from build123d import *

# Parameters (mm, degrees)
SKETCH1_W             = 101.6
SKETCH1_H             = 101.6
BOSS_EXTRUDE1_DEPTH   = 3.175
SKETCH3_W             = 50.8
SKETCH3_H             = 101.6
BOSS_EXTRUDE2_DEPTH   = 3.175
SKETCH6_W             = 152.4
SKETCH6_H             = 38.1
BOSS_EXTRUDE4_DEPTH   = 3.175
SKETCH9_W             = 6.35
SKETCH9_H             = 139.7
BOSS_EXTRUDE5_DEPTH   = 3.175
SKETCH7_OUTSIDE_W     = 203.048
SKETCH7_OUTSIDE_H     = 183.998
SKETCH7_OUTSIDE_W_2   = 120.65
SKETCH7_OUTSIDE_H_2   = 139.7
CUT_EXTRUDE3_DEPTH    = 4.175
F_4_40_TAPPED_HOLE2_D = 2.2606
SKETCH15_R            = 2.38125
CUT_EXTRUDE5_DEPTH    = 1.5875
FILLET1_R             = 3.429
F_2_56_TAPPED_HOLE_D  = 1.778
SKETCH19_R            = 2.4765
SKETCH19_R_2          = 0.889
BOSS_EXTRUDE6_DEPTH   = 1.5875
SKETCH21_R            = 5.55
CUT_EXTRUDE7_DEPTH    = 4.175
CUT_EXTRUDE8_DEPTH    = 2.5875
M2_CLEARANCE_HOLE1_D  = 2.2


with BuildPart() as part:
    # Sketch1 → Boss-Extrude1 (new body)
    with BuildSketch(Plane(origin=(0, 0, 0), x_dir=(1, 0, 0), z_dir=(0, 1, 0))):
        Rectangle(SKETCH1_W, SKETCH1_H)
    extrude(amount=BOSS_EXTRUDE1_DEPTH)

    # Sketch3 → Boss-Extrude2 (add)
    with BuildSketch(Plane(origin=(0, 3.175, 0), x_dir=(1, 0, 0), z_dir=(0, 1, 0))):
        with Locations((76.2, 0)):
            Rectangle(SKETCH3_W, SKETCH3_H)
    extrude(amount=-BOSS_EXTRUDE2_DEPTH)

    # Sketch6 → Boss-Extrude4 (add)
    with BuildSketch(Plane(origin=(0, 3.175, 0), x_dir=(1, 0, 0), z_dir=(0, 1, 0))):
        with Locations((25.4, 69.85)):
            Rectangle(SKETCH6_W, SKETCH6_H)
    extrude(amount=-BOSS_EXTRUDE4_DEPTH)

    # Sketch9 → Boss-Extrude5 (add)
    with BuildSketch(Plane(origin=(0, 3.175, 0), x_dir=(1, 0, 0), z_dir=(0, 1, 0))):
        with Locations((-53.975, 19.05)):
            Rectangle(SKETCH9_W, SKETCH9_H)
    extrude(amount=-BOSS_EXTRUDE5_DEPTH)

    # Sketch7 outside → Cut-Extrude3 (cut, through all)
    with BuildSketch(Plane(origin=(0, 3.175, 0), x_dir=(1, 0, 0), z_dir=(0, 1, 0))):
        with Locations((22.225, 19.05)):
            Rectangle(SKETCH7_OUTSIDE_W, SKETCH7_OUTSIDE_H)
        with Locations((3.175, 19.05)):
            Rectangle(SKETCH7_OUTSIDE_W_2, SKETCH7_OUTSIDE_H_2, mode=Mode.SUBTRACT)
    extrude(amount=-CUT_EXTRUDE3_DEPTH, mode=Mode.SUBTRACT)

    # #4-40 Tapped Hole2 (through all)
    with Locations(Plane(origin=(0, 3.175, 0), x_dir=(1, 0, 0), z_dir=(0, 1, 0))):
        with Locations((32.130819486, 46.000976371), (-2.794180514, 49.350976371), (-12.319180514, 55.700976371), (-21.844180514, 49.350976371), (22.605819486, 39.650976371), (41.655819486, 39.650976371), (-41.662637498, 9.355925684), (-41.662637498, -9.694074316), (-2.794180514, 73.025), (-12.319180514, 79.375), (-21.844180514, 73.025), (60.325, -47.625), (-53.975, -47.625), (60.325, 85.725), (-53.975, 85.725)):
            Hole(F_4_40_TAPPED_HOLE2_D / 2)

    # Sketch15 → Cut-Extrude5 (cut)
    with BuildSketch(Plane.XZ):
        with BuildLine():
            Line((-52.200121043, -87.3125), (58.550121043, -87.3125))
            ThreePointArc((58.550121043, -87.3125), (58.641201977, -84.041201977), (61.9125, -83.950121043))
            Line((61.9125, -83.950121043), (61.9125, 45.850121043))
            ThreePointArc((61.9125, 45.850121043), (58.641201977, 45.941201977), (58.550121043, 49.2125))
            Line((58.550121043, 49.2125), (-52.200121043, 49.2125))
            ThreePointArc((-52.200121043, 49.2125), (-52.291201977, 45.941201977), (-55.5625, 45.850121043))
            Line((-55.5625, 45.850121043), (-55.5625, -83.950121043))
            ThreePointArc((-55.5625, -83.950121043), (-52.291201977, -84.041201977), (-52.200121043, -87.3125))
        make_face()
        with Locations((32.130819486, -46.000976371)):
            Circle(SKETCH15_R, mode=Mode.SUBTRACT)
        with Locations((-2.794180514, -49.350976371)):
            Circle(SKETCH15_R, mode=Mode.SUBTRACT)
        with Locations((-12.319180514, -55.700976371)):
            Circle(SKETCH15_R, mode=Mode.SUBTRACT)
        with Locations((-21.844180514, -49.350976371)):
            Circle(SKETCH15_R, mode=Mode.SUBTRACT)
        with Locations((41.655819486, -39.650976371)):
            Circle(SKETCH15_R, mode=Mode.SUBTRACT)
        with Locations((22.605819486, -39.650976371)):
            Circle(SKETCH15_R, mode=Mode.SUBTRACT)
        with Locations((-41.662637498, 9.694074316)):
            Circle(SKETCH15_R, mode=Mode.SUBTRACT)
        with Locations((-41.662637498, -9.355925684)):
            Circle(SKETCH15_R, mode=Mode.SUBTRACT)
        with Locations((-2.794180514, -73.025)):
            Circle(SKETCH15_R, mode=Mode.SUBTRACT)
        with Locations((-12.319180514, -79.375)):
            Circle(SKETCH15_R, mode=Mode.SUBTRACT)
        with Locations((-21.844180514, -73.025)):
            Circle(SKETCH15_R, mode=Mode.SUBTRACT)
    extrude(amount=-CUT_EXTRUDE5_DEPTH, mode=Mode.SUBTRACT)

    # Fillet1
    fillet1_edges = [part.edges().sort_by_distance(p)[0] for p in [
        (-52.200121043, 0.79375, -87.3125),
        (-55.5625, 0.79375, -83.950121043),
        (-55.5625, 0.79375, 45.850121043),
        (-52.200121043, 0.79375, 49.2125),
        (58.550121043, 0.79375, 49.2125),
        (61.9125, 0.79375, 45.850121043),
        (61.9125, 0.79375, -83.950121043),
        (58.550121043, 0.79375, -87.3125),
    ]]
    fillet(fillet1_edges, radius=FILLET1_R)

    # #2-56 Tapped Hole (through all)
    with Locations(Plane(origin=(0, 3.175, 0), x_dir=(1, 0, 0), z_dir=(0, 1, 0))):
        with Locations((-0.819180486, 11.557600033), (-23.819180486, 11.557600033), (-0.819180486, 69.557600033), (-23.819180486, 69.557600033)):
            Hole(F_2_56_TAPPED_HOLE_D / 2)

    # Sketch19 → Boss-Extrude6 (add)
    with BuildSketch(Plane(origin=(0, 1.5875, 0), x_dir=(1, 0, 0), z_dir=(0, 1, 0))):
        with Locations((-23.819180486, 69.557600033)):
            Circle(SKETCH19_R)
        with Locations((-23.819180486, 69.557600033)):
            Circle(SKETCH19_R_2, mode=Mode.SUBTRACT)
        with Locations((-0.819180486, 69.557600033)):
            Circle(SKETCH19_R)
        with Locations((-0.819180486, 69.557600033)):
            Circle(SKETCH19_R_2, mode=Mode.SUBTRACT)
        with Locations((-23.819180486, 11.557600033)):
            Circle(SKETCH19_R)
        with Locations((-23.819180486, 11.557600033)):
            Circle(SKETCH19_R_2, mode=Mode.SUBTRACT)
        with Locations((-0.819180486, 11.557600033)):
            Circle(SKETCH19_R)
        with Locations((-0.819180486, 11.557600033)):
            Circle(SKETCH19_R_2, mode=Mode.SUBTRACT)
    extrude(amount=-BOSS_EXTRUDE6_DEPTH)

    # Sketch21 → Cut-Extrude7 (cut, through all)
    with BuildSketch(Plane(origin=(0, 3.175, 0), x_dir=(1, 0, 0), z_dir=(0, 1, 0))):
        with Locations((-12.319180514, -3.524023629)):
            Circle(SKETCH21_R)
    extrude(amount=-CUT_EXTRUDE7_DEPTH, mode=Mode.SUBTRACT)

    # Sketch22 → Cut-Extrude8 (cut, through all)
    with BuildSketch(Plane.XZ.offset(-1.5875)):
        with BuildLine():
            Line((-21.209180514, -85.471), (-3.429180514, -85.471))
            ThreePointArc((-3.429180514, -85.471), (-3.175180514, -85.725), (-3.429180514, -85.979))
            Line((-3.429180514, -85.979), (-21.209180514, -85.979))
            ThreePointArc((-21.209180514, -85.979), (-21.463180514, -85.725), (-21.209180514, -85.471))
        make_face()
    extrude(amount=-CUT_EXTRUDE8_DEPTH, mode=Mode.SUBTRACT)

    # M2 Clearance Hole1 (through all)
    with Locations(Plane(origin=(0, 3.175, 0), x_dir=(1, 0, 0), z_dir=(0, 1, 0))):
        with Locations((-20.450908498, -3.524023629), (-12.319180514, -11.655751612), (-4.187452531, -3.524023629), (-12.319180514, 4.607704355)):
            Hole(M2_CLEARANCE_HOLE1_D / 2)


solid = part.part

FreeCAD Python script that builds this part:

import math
import FreeCAD as App
import Part
import Sketcher
Q = App.Units.Quantity


def edges_at(feature, points):
    """Names of the edges that pass closest to the given points."""
    edges = feature.Shape.Edges
    near = lambda p: min(range(len(edges)), key=lambda i: edges[i].distToShape(Part.Vertex(*p))[0])
    return sorted({f"Edge{near(p) + 1}" for p in points})


def add_polygon(sketch, points):
    """Adds a closed chain of lines whose ends are joined by coincident constraints."""
    first, n = sketch.GeometryCount, len(points)
    for a, b in zip(points, points[1:] + points[:1]):
        sketch.addGeometry(Part.LineSegment(App.Vector(*a, 0), App.Vector(*b, 0)), False)
    for i in range(n):
        sketch.addConstraint(Sketcher.Constraint("Coincident", first + i, 2, first + (i + 1) % n, 1))

doc = App.newDocument("Part")
body = doc.addObject("PartDesign::Body", "Body")

sketch1 = body.newObject("Sketcher::SketchObject", "Sketch")
sketch1.AttachmentSupport = (doc.getObject("XZ_Plane"), [""])
sketch1.MapMode = "FlatFace"
add_polygon(sketch1, [(-51, -51), (-51, 51), (51, 51), (51, -51)])
sketch1.addConstraint([
    Sketcher.Constraint("Vertical", 0),
    Sketcher.Constraint("Horizontal", 1),
    Sketcher.Constraint("Vertical", 2),
    Sketcher.Constraint("Horizontal", 3),
    Sketcher.Constraint("Symmetric", 0, 2, 2, 2, -1, 1),
    Sketcher.Constraint("Equal", 3, 0),
    Sketcher.Constraint("DistanceX", 1, 1, 1, 2, Q("4 in")),
])
pad1 = body.newObject("PartDesign::Pad", "Pad")
pad1.Profile = sketch1
pad1.Length = Q("0.125 in")
pad1.Reversed = True

sketch2 = body.newObject("Sketcher::SketchObject", "Sketch001")
sketch2.AttachmentSupport = (doc.getObject("XZ_Plane"), [""])
sketch2.MapMode = "FlatFace"
sketch2.AttachmentOffset = App.Placement(App.Vector(0, 0, -0.125 * 25.4), App.Rotation())
add_polygon(sketch2, [(51, -51), (51, 51), (102, 51), (102, -51)])
sketch2.addConstraint([
    Sketcher.Constraint("Vertical", 0),
    Sketcher.Constraint("Horizontal", 1),
    Sketcher.Constraint("Vertical", 2),
    Sketcher.Constraint("Horizontal", 3),
    Sketcher.Constraint("DistanceX", 1, 1, 1, 2, Q("2 in")),
    Sketcher.Constraint("DistanceY", 0, 1, 0, 2, Q("4 in")),
    Sketcher.Constraint("DistanceX", -1, 1, 0, 2, Q("2 in")),
    Sketcher.Constraint("DistanceY", -1, 1, 0, 2, Q("2 in")),
])
pad2 = body.newObject("PartDesign::Pad", "Pad001")
pad2.Profile = sketch2
pad2.Length = Q("0.125 in")

sketch3 = body.newObject("Sketcher::SketchObject", "Sketch002")
sketch3.AttachmentSupport = (doc.getObject("XZ_Plane"), [""])
sketch3.MapMode = "FlatFace"
sketch3.AttachmentOffset = App.Placement(App.Vector(0, 0, -0.125 * 25.4), App.Rotation())
add_polygon(sketch3, [(-51, -89), (-51, -51), (102, -51), (102, -89)])
sketch3.addConstraint([
    Sketcher.Constraint("Vertical", 0),
    Sketcher.Constraint("Horizontal", 1),
    Sketcher.Constraint("Vertical", 2),
    Sketcher.Constraint("Horizontal", 3),
    Sketcher.Constraint("DistanceX", 1, 1, 1, 2, Q("6 in")),
    Sketcher.Constraint("DistanceY", 0, 1, 0, 2, Q("1.5 in")),
    Sketcher.Constraint("DistanceX", 0, 2, -1, 1, Q("2 in")),
    Sketcher.Constraint("DistanceY", 0, 2, -1, 1, Q("2 in")),
])
pad3 = body.newObject("PartDesign::Pad", "Pad002")
pad3.Profile = sketch3
pad3.Length = Q("0.125 in")

sketch4 = body.newObject("Sketcher::SketchObject", "Sketch003")
sketch4.AttachmentSupport = (doc.getObject("XZ_Plane"), [""])
sketch4.MapMode = "FlatFace"
sketch4.AttachmentOffset = App.Placement(App.Vector(0, 0, -0.125 * 25.4), App.Rotation())
add_polygon(sketch4, [(-57, -89), (-57, 51), (-51, 51), (-51, -89)])
sketch4.addConstraint([
    Sketcher.Constraint("Vertical", 0),
    Sketcher.Constraint("Horizontal", 1),
    Sketcher.Constraint("Vertical", 2),
    Sketcher.Constraint("Horizontal", 3),
    Sketcher.Constraint("DistanceY", 0, 1, 0, 2, Q("5.5 in")),
    Sketcher.Constraint("DistanceY", -1, 1, 0, 2, Q("2 in")),
    Sketcher.Constraint("DistanceX", 1, 2, -1, 1, Q("2 in")),
    Sketcher.Constraint("DistanceX", 1, 1, 1, 2, Q("0.25 in")),
])
pad4 = body.newObject("PartDesign::Pad", "Pad003")
pad4.Profile = sketch4
pad4.Length = Q("0.125 in")

sketch5 = body.newObject("Sketcher::SketchObject", "Sketch004")
sketch5.AttachmentSupport = (doc.getObject("XZ_Plane"), [""])
sketch5.MapMode = "FlatFace"
sketch5.AttachmentOffset = App.Placement(App.Vector(0, 0, -0.125 * 25.4), App.Rotation())
add_polygon(sketch5, [(-79, -111), (-79, 73), (124, 73), (124, -111)])
add_polygon(sketch5, [(64, 51), (-57, 51), (-57, -89), (64, -89)])
sketch5.addConstraint([
    Sketcher.Constraint("Vertical", 0),
    Sketcher.Constraint("Horizontal", 1),
    Sketcher.Constraint("Vertical", 2),
    Sketcher.Constraint("Horizontal", 3),
    Sketcher.Constraint("Horizontal", 4),
    Sketcher.Constraint("Vertical", 5),
    Sketcher.Constraint("Horizontal", 6),
    Sketcher.Constraint("Vertical", 7),
    Sketcher.Constraint("DistanceY", 5, 2, 5, 1, Q("5.5 in")),
    Sketcher.Constraint("DistanceY", -1, 1, 4, 2, Q("2 in")),
    Sketcher.Constraint("DistanceX", 4, 2, 4, 1, Q("4.75 in")),
    Sketcher.Constraint("DistanceX", -1, 1, 6, 2, Q("2.5 in")),
    Sketcher.Constraint("DistanceX", 1, 1, 1, 2, Q("203.048 mm")),
    Sketcher.Constraint("DistanceY", 0, 1, 0, 2, Q("183.998 mm")),
    Sketcher.Constraint("DistanceX", 0, 2, -1, 1, Q("79.299 mm")),
    Sketcher.Constraint("DistanceY", -1, 1, 0, 2, Q("72.949 mm")),
])
pocket1 = body.newObject("PartDesign::Pocket", "Pocket")
pocket1.Profile = sketch5
pocket1.Type = "ThroughAll"
pocket1.Reversed = True

sketch6 = body.newObject("Sketcher::SketchObject", "Sketch005")
sketch6.AttachmentSupport = (doc.getObject("XZ_Plane"), [""])
sketch6.MapMode = "FlatFace"
sketch6.AttachmentOffset = App.Placement(App.Vector(0, 0, -0.125 * 25.4), App.Rotation())
sketch6.addGeometry([
    Part.Circle(App.Vector(32.1, -46, 0), App.Vector(0, 0, 1), 1.1),
    Part.Circle(App.Vector(-2.8, -49.4, 0), App.Vector(0, 0, 1), 1.1),
    Part.Circle(App.Vector(-12.3, -55.7, 0), App.Vector(0, 0, 1), 1.1),
    Part.Circle(App.Vector(-21.8, -49.4, 0), App.Vector(0, 0, 1), 1.1),
    Part.Circle(App.Vector(22.6, -39.7, 0), App.Vector(0, 0, 1), 1.1),
    Part.Circle(App.Vector(41.7, -39.7, 0), App.Vector(0, 0, 1), 1.1),
    Part.Circle(App.Vector(-41.7, -9.4, 0), App.Vector(0, 0, 1), 1.1),
    Part.Circle(App.Vector(-41.7, 9.7, 0), App.Vector(0, 0, 1), 1.1),
    Part.Circle(App.Vector(-2.8, -73, 0), App.Vector(0, 0, 1), 1.1),
    Part.Circle(App.Vector(-12.3, -79.4, 0), App.Vector(0, 0, 1), 1.1),
    Part.Circle(App.Vector(-21.8, -73, 0), App.Vector(0, 0, 1), 1.1),
    Part.Circle(App.Vector(60.3, 47.6, 0), App.Vector(0, 0, 1), 1.1),
    Part.Circle(App.Vector(-54, 47.6, 0), App.Vector(0, 0, 1), 1.1),
    Part.Circle(App.Vector(60.3, -85.7, 0), App.Vector(0, 0, 1), 1.1),
    Part.Circle(App.Vector(-54, -85.7, 0), App.Vector(0, 0, 1), 1.1),
], False)
sketch6.addConstraint([
    Sketcher.Constraint("Equal", 0, 1),
    Sketcher.Constraint("Equal", 1, 2),
    Sketcher.Constraint("Equal", 2, 3),
    Sketcher.Constraint("Equal", 3, 4),
    Sketcher.Constraint("Equal", 4, 5),
    Sketcher.Constraint("Equal", 5, 6),
    Sketcher.Constraint("Equal", 6, 7),
    Sketcher.Constraint("Equal", 7, 8),
    Sketcher.Constraint("Equal", 8, 9),
    Sketcher.Constraint("Equal", 9, 10),
    Sketcher.Constraint("Equal", 10, 11),
    Sketcher.Constraint("Equal", 11, 12),
    Sketcher.Constraint("Equal", 12, 13),
    Sketcher.Constraint("Equal", 13, 14),
    Sketcher.Constraint("Horizontal", 1, 3, 3, 3),
    Sketcher.Constraint("Horizontal", 4, 3, 5, 3),
    Sketcher.Constraint("Horizontal", 8, 3, 10, 3),
    Sketcher.Constraint("Horizontal", 11, 3, 12, 3),
    Sketcher.Constraint("Horizontal", 13, 3, 14, 3),
    Sketcher.Constraint("Vertical", 6, 3, 7, 3),
    Sketcher.Constraint("Vertical", 1, 3, 8, 3),
    Sketcher.Constraint("Vertical", 2, 3, 9, 3),
    Sketcher.Constraint("Vertical", 3, 3, 10, 3),
    Sketcher.Constraint("Vertical", 11, 3, 13, 3),
    Sketcher.Constraint("Vertical", 12, 3, 14, 3),
    Sketcher.Constraint("Diameter", 0, Q("0.089 in")),
    Sketcher.Constraint("DistanceX", 1, 3, 4, 3, Q("1 in")),
    Sketcher.Constraint("DistanceX", 3, 3, 5, 3, Q("2.5 in")),
    Sketcher.Constraint("DistanceY", 13, 3, 8, 3, Q("0.5 in")),
    Sketcher.Constraint("DistanceY", 2, 3, 1, 3, Q("0.25 in")),
    Sketcher.Constraint("DistanceX", 2, 3, 0, 3, Q("1.75 in")),
    Sketcher.Constraint("DistanceX", 3, 3, 1, 3, Q("0.75 in")),
    Sketcher.Constraint("DistanceY", 0, 3, 4, 3, Q("0.25 in")),
    Sketcher.Constraint("DistanceY", 6, 3, 7, 3, Q("0.75 in")),
    Sketcher.Constraint("DistanceY", 9, 3, 8, 3, Q("0.25 in")),
    Sketcher.Constraint("DistanceY", 8, 3, -1, 1, Q("2.875 in")),
    Sketcher.Constraint("DistanceX", -1, 1, 11, 3, Q("2.375 in")),
    Sketcher.Constraint("DistanceY", -1, 1, 11, 3, Q("1.875 in")),
    Sketcher.Constraint("DistanceX", 12, 3, -1, 1, Q("2.125 in")),
    Sketcher.Constraint("DistanceX", 1, 3, 0, 3, Q("1.375 in")),
    Sketcher.Constraint("DistanceY", 1, 3, 0, 3, Q("3.35 mm")),
    Sketcher.Constraint("DistanceX", -1, 1, 0, 3, Q("32.130819 mm")),
    Sketcher.Constraint("DistanceY", 3, 3, 6, 3, Q("39.995051 mm")),
    Sketcher.Constraint("DistanceY", 0, 3, -1, 1, Q("46.000976 mm")),
    Sketcher.Constraint("DistanceX", 6, 3, -1, 1, Q("41.662637 mm")),
])
doc.recompute()
hole = body.newObject("PartDesign::Hole", "Hole")
hole.Profile = sketch6
hole.ThreadType = "None"
hole.Diameter = Q("0.089 in")
hole.DepthType = "ThroughAll"
hole.Reversed = True

sketch7 = body.newObject("Sketcher::SketchObject", "Sketch006")
sketch7.AttachmentSupport = (doc.getObject("XZ_Plane"), [""])
sketch7.MapMode = "FlatFace"
sketch7.addGeometry([
    Part.LineSegment(App.Vector(-52.2, -87.3, 0), App.Vector(58.6, -87.3, 0)),
    Part.ArcOfCircle(Part.Circle(App.Vector(60.3, -85.7, 0), App.Vector(0, 0, 1), 2.4), math.radians(48), math.radians(222)),
    Part.LineSegment(App.Vector(61.9, -84, 0), App.Vector(61.9, 45.9, 0)),
    Part.ArcOfCircle(Part.Circle(App.Vector(60.3, 47.6, 0), App.Vector(0, 0, 1), 2.4), math.radians(138), math.radians(312)),
    Part.LineSegment(App.Vector(58.6, 49.2, 0), App.Vector(-52.2, 49.2, 0)),
    Part.ArcOfCircle(Part.Circle(App.Vector(-54, 47.6, 0), App.Vector(0, 0, 1), 2.4), math.radians(-132), math.radians(42)),
    Part.LineSegment(App.Vector(-55.6, 45.9, 0), App.Vector(-55.6, -84, 0)),
    Part.ArcOfCircle(Part.Circle(App.Vector(-54, -85.7, 0), App.Vector(0, 0, 1), 2.4), math.radians(-42), math.radians(132)),
    Part.Circle(App.Vector(-12.3, -79.4, 0), App.Vector(0, 0, 1), 2.4),
    Part.Circle(App.Vector(-21.8, -73, 0), App.Vector(0, 0, 1), 2.4),
    Part.Circle(App.Vector(-2.8, -73, 0), App.Vector(0, 0, 1), 2.4),
    Part.Circle(App.Vector(-12.3, -55.7, 0), App.Vector(0, 0, 1), 2.4),
    Part.Circle(App.Vector(-21.8, -49.4, 0), App.Vector(0, 0, 1), 2.4),
    Part.Circle(App.Vector(-2.8, -49.4, 0), App.Vector(0, 0, 1), 2.4),
    Part.Circle(App.Vector(32.1, -46, 0), App.Vector(0, 0, 1), 2.4),
    Part.Circle(App.Vector(22.6, -39.7, 0), App.Vector(0, 0, 1), 2.4),
    Part.Circle(App.Vector(41.7, -39.7, 0), App.Vector(0, 0, 1), 2.4),
    Part.Circle(App.Vector(-41.7, -9.4, 0), App.Vector(0, 0, 1), 2.4),
    Part.Circle(App.Vector(-41.7, 9.7, 0), App.Vector(0, 0, 1), 2.4),
], False)
sketch7.addConstraint([
    Sketcher.Constraint("Coincident", 0, 2, 1, 2),
    Sketcher.Constraint("Coincident", 1, 1, 2, 1),
    Sketcher.Constraint("Coincident", 2, 2, 3, 2),
    Sketcher.Constraint("Coincident", 3, 1, 4, 1),
    Sketcher.Constraint("Coincident", 4, 2, 5, 2),
    Sketcher.Constraint("Coincident", 5, 1, 6, 1),
    Sketcher.Constraint("Coincident", 6, 2, 7, 2),
    Sketcher.Constraint("Coincident", 7, 1, 0, 1),
    Sketcher.Constraint("Horizontal", 0),
    Sketcher.Constraint("Vertical", 2),
    Sketcher.Constraint("Horizontal", 4),
    Sketcher.Constraint("Vertical", 6),
    Sketcher.Constraint("Equal", 1, 3),
    Sketcher.Constraint("Equal", 3, 5),
    Sketcher.Constraint("Equal", 5, 7),
    Sketcher.Constraint("Equal", 7, 8),
    Sketcher.Constraint("Equal", 8, 9),
    Sketcher.Constraint("Equal", 9, 10),
    Sketcher.Constraint("Equal", 10, 11),
    Sketcher.Constraint("Equal", 11, 12),
    Sketcher.Constraint("Equal", 12, 13),
    Sketcher.Constraint("Equal", 13, 14),
    Sketcher.Constraint("Equal", 14, 15),
    Sketcher.Constraint("Equal", 15, 16),
    Sketcher.Constraint("Equal", 16, 17),
    Sketcher.Constraint("Equal", 17, 18),
    Sketcher.Constraint("Horizontal", 3, 3, 5, 3),
    Sketcher.Constraint("Horizontal", 1, 3, 7, 3),
    Sketcher.Constraint("Horizontal", 9, 3, 10, 3),
    Sketcher.Constraint("Horizontal", 12, 3, 13, 3),
    Sketcher.Constraint("Horizontal", 15, 3, 16, 3),
    Sketcher.Constraint("Horizontal", 2, 2, 5, 1),
    Sketcher.Constraint("Horizontal", 1, 1, 6, 2),
    Sketcher.Constraint("Vertical", 1, 3, 3, 3),
    Sketcher.Constraint("Vertical", 8, 3, 11, 3),
    Sketcher.Constraint("Vertical", 9, 3, 12, 3),
    Sketcher.Constraint("Vertical", 10, 3, 13, 3),
    Sketcher.Constraint("Vertical", 17, 3, 18, 3),
    Sketcher.Constraint("Vertical", 0, 2, 3, 1),
    Sketcher.Constraint("Diameter", 8, Q("0.1875 in")),
    Sketcher.Constraint("DistanceY", 8, 3, 5, 3, Q("5 in")),
    Sketcher.Constraint("DistanceX", 13, 3, 15, 3, Q("1 in")),
    Sketcher.Constraint("DistanceX", 5, 3, 3, 3, Q("4.5 in")),
    Sketcher.Constraint("DistanceY", 7, 3, 9, 3, Q("0.5 in")),
    Sketcher.Constraint("DistanceY", 1, 3, 3, 3, Q("5.25 in")),
    Sketcher.Constraint("DistanceX", 9, 3, 10, 3, Q("0.75 in")),
    Sketcher.Constraint("DistanceY", 11, 3, 12, 3, Q("0.25 in")),
    Sketcher.Constraint("DistanceX", 11, 3, 14, 3, Q("1.75 in")),
    Sketcher.Constraint("DistanceY", 14, 3, 15, 3, Q("0.25 in")),
    Sketcher.Constraint("DistanceX", 15, 3, 16, 3, Q("0.75 in")),
    Sketcher.Constraint("DistanceY", 17, 3, 18, 3, Q("0.75 in")),
    Sketcher.Constraint("DistanceX", -1, 1, 1, 3, Q("2.375 in")),
    Sketcher.Constraint("DistanceY", 1, 3, -1, 1, Q("3.375 in")),
    Sketcher.Constraint("DistanceY", 0, 2, -1, 1, Q("3.4375 in")),
    Sketcher.Constraint("DistanceX", -1, 1, 1, 1, Q("2.4375 in")),
    Sketcher.Constraint("DistanceX", 9, 3, 8, 3, Q("0.375 in")),
    Sketcher.Constraint("DistanceY", 13, 3, 14, 3, Q("3.35 mm")),
    Sketcher.Constraint("DistanceX", 14, 3, 0, 2, Q("26.419302 mm")),
    Sketcher.Constraint("DistanceY", 12, 3, 17, 3, Q("39.995051 mm")),
    Sketcher.Constraint("DistanceY", 11, 3, -1, 1, Q("55.700976 mm")),
    Sketcher.Constraint("DistanceX", 17, 3, -1, 1, Q("41.662637 mm")),
])
pocket2 = body.newObject("PartDesign::Pocket", "Pocket001")
pocket2.Profile = sketch7
pocket2.Length = Q("0.0625 in")
doc.recompute()

fillet = body.newObject("PartDesign::Fillet", "Fillet")
fillet.Base = (pocket2, edges_at(pocket2, [
    (-52.2, 0.794, -87.312),
    (-55.562, 0.794, -83.95),
    (-55.562, 0.794, 45.85),
    (-52.2, 0.794, 49.212),
    (58.55, 0.794, 49.212),
    (61.913, 0.794, 45.85),
    (61.913, 0.794, -83.95),
    (58.55, 0.794, -87.312),
]))
fillet.Radius = Q("0.135 in")

sketch8 = body.newObject("Sketcher::SketchObject", "Sketch007")
sketch8.AttachmentSupport = (doc.getObject("XZ_Plane"), [""])
sketch8.MapMode = "FlatFace"
sketch8.AttachmentOffset = App.Placement(App.Vector(0, 0, -0.125 * 25.4), App.Rotation())
sketch8.addGeometry([
    Part.Circle(App.Vector(-0.8, -11.6, 0), App.Vector(0, 0, 1), 0.9),
    Part.Circle(App.Vector(-23.8, -11.6, 0), App.Vector(0, 0, 1), 0.9),
    Part.Circle(App.Vector(-0.8, -69.6, 0), App.Vector(0, 0, 1), 0.9),
    Part.Circle(App.Vector(-23.8, -69.6, 0), App.Vector(0, 0, 1), 0.9),
], False)
sketch8.addConstraint([
    Sketcher.Constraint("Equal", 0, 1),
    Sketcher.Constraint("Equal", 1, 2),
    Sketcher.Constraint("Equal", 2, 3),
    Sketcher.Constraint("Horizontal", 0, 3, 1, 3),
    Sketcher.Constraint("Horizontal", 2, 3, 3, 3),
    Sketcher.Constraint("Vertical", 0, 3, 2, 3),
    Sketcher.Constraint("Vertical", 1, 3, 3, 3),
    Sketcher.Constraint("Diameter", 0, Q("0.07 in")),
    Sketcher.Constraint("DistanceY", 0, 3, -1, 1, Q("11.5576 mm")),
    Sketcher.Constraint("DistanceY", 2, 3, -1, 1, Q("69.5576 mm")),
    Sketcher.Constraint("DistanceX", 1, 3, 0, 3, Q("23 mm")),
    Sketcher.Constraint("DistanceX", 0, 3, -1, 1, Q("0.81918 mm")),
])
doc.recompute()
hole2 = body.newObject("PartDesign::Hole", "Hole001")
hole2.Profile = sketch8
hole2.ThreadType = "None"
hole2.Diameter = Q("0.07 in")
hole2.DepthType = "ThroughAll"
hole2.Reversed = True

sketch9 = body.newObject("Sketcher::SketchObject", "Sketch008")
sketch9.AttachmentSupport = (doc.getObject("XZ_Plane"), [""])
sketch9.MapMode = "FlatFace"
sketch9.AttachmentOffset = App.Placement(App.Vector(0, 0, -0.0625 * 25.4), App.Rotation())
sketch9.addGeometry([
    Part.Circle(App.Vector(-23.8, -69.6, 0), App.Vector(0, 0, 1), 2.5),
    Part.Circle(App.Vector(-23.8, -69.6, 0), App.Vector(0, 0, 1), 0.9),
    Part.Circle(App.Vector(-0.8, -69.6, 0), App.Vector(0, 0, 1), 2.5),
    Part.Circle(App.Vector(-0.8, -69.6, 0), App.Vector(0, 0, 1), 0.9),
    Part.Circle(App.Vector(-23.8, -11.6, 0), App.Vector(0, 0, 1), 2.5),
    Part.Circle(App.Vector(-23.8, -11.6, 0), App.Vector(0, 0, 1), 0.9),
    Part.Circle(App.Vector(-0.8, -11.6, 0), App.Vector(0, 0, 1), 2.5),
    Part.Circle(App.Vector(-0.8, -11.6, 0), App.Vector(0, 0, 1), 0.9),
], False)
sketch9.addConstraint([
    Sketcher.Constraint("Coincident", 1, 3, 0, 3),
    Sketcher.Constraint("Coincident", 3, 3, 2, 3),
    Sketcher.Constraint("Coincident", 5, 3, 4, 3),
    Sketcher.Constraint("Coincident", 7, 3, 6, 3),
    Sketcher.Constraint("Equal", 0, 2),
    Sketcher.Constraint("Equal", 1, 3),
    Sketcher.Constraint("Equal", 2, 4),
    Sketcher.Constraint("Equal", 3, 5),
    Sketcher.Constraint("Equal", 4, 6),
    Sketcher.Constraint("Equal", 5, 7),
    Sketcher.Constraint("Horizontal", 1, 3, 2, 3),
    Sketcher.Constraint("Horizontal", 5, 3, 6, 3),
    Sketcher.Constraint("Vertical", 1, 3, 4, 3),
    Sketcher.Constraint("Vertical", 3, 3, 6, 3),
    Sketcher.Constraint("Diameter", 1, Q("0.07 in")),
    Sketcher.Constraint("Diameter", 0, Q("0.195 in")),
    Sketcher.Constraint("DistanceY", 0, 3, -1, 1, Q("69.5576 mm")),
    Sketcher.Constraint("DistanceY", 4, 3, -1, 1, Q("11.5576 mm")),
    Sketcher.Constraint("DistanceX", 0, 3, 2, 3, Q("23 mm")),
    Sketcher.Constraint("DistanceX", 0, 3, -1, 1, Q("23.81918 mm")),
])
pad5 = body.newObject("PartDesign::Pad", "Pad004")
pad5.Profile = sketch9
pad5.Length = Q("0.0625 in")

sketch10 = body.newObject("Sketcher::SketchObject", "Sketch009")
sketch10.AttachmentSupport = (doc.getObject("XZ_Plane"), [""])
sketch10.MapMode = "FlatFace"
sketch10.AttachmentOffset = App.Placement(App.Vector(0, 0, -0.125 * 25.4), App.Rotation())
sketch10.addGeometry(Part.Circle(App.Vector(-12, 4, 0), App.Vector(0, 0, 1), 6), False)
sketch10.addConstraint([
    Sketcher.Constraint("Diameter", 0, Q("11.1 mm")),
    Sketcher.Constraint("DistanceX", 0, 3, -1, 1, Q("12.319181 mm")),
    Sketcher.Constraint("DistanceY", -1, 1, 0, 3, Q("3.524024 mm")),
])
pocket3 = body.newObject("PartDesign::Pocket", "Pocket002")
pocket3.Profile = sketch10
pocket3.Type = "ThroughAll"
pocket3.Reversed = True

sketch11 = body.newObject("Sketcher::SketchObject", "Sketch010")
sketch11.AttachmentSupport = (doc.getObject("XZ_Plane"), [""])
sketch11.MapMode = "FlatFace"
sketch11.AttachmentOffset = App.Placement(App.Vector(0, 0, -0.0625 * 25.4), App.Rotation())
sketch11.addGeometry([
    Part.LineSegment(App.Vector(-3.43, -85.47, 0), App.Vector(-21.21, -85.47, 0)),
    Part.ArcOfCircle(Part.Circle(App.Vector(-21.21, -85.72, 0), App.Vector(0, 0, 1), 0.25), math.radians(90), math.radians(270)),
    Part.LineSegment(App.Vector(-21.21, -85.98, 0), App.Vector(-3.43, -85.98, 0)),
    Part.ArcOfCircle(Part.Circle(App.Vector(-3.43, -85.72, 0), App.Vector(0, 0, 1), 0.25), math.radians(-90), math.radians(90)),
], False)
sketch11.addConstraint([
    Sketcher.Constraint("Tangent", 0, 2, 1, 1),
    Sketcher.Constraint("Tangent", 1, 2, 2, 1),
    Sketcher.Constraint("Tangent", 2, 2, 3, 1),
    Sketcher.Constraint("Tangent", 3, 2, 0, 1),
    Sketcher.Constraint("Horizontal", 0),
    Sketcher.Constraint("Horizontal", 2),
    Sketcher.Constraint("Radius", 1, Q("0.01 in")),
    Sketcher.Constraint("DistanceX", 0, 2, 0, 1, Q("0.7 in")),
    Sketcher.Constraint("DistanceY", 1, 3, -1, 1, Q("3.375 in")),
    Sketcher.Constraint("DistanceX", 1, 3, -1, 1, Q("21.209181 mm")),
])
pocket4 = body.newObject("PartDesign::Pocket", "Pocket003")
pocket4.Profile = sketch11
pocket4.Type = "ThroughAll"

sketch12 = body.newObject("Sketcher::SketchObject", "Sketch011")
sketch12.AttachmentSupport = (doc.getObject("XZ_Plane"), [""])
sketch12.MapMode = "FlatFace"
sketch12.AttachmentOffset = App.Placement(App.Vector(0, 0, -0.125 * 25.4), App.Rotation())
sketch12.addGeometry([
    Part.Circle(App.Vector(-20.5, 3.5, 0), App.Vector(0, 0, 1), 1.1),
    Part.Circle(App.Vector(-12.3, 11.7, 0), App.Vector(0, 0, 1), 1.1),
    Part.Circle(App.Vector(-4.2, 3.5, 0), App.Vector(0, 0, 1), 1.1),
    Part.Circle(App.Vector(-12.3, -4.6, 0), App.Vector(0, 0, 1), 1.1),
], False)
sketch12.addConstraint([
    Sketcher.Constraint("Equal", 0, 1),
    Sketcher.Constraint("Equal", 1, 2),
    Sketcher.Constraint("Equal", 2, 3),
    Sketcher.Constraint("Horizontal", 0, 3, 2, 3),
    Sketcher.Constraint("Vertical", 1, 3, 3, 3),
    Sketcher.Constraint("Diameter", 0, Q("2.2 mm")),
    Sketcher.Constraint("DistanceX", 0, 3, -1, 1, Q("20.450908 mm")),
    Sketcher.Constraint("DistanceX", 1, 3, -1, 1, Q("12.319181 mm")),
    Sketcher.Constraint("DistanceY", -1, 1, 1, 3, Q("11.655752 mm")),
    Sketcher.Constraint("DistanceY", -1, 1, 0, 3, Q("3.524024 mm")),
    Sketcher.Constraint("DistanceX", 2, 3, -1, 1, Q("4.187453 mm")),
    Sketcher.Constraint("DistanceY", 3, 3, -1, 1, Q("4.607704 mm")),
])
doc.recompute()
hole3 = body.newObject("PartDesign::Hole", "Hole002")
hole3.Profile = sketch12
hole3.ThreadType = "None"
hole3.Diameter = 2.2
hole3.DepthType = "ThroughAll"
hole3.Reversed = True

doc.recompute()
